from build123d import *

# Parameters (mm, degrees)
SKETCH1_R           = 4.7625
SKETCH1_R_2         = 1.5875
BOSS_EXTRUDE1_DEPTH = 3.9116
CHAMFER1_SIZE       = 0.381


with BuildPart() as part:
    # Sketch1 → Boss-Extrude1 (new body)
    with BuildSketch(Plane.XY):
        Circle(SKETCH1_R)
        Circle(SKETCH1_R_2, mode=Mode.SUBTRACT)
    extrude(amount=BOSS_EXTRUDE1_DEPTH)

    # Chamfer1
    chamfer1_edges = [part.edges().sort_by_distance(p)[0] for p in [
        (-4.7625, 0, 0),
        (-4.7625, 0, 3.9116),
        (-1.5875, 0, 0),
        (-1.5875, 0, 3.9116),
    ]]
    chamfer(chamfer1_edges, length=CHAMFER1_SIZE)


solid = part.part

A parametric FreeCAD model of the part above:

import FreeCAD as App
import Part
import Sketcher

V = App.Vector
Q = App.Units.Quantity


def edges_at(feature, points):
    """Names of the edges that pass closest to the given points."""
    edges = feature.Shape.Edges
    near = lambda p: min(range(len(edges)), key=lambda i: edges[i].distToShape(Part.Vertex(*p))[0])
    return sorted({f"Edge{near(p) + 1}" for p in points})

doc = App.newDocument("Part")
body = doc.addObject("PartDesign::Body", "Body")

# Sketch on XY plane
sketch1 = body.newObject("Sketcher::SketchObject", "Sketch")
sketch1.AttachmentSupport = (doc.getObject("XY_Plane"), [""])
sketch1.MapMode = "FlatFace"
sketch1.addGeometry([
    Part.Circle(V(0, 0, 0), V(0, 0, 1), 4.8),
    Part.Circle(V(0, 0, 0), V(0, 0, 1), 1.6),
], False)
sketch1.addConstraint([
    Sketcher.Constraint("Coincident", 0, 3, -1, 1),
    Sketcher.Constraint("Coincident", 1, 3, -1, 1),
    Sketcher.Constraint("Diameter", 0, Q("0.375 in")),
    Sketcher.Constraint("Diameter", 1, Q("0.125 in")),
])
pad1 = body.newObject("PartDesign::Pad", "Pad")
pad1.Profile = sketch1
pad1.Length = Q("0.154 in")
doc.recompute()

chamfer = body.newObject("PartDesign::Chamfer", "Chamfer")
chamfer.Base = (pad1, edges_at(pad1, [
    (-4.763, 0, 0),
    (-4.763, 0, 3.912),
    (-1.587, 0, 0),
    (-1.587, 0, 3.912),
]))
chamfer.Size = Q("0.015 in")

doc.recompute()
